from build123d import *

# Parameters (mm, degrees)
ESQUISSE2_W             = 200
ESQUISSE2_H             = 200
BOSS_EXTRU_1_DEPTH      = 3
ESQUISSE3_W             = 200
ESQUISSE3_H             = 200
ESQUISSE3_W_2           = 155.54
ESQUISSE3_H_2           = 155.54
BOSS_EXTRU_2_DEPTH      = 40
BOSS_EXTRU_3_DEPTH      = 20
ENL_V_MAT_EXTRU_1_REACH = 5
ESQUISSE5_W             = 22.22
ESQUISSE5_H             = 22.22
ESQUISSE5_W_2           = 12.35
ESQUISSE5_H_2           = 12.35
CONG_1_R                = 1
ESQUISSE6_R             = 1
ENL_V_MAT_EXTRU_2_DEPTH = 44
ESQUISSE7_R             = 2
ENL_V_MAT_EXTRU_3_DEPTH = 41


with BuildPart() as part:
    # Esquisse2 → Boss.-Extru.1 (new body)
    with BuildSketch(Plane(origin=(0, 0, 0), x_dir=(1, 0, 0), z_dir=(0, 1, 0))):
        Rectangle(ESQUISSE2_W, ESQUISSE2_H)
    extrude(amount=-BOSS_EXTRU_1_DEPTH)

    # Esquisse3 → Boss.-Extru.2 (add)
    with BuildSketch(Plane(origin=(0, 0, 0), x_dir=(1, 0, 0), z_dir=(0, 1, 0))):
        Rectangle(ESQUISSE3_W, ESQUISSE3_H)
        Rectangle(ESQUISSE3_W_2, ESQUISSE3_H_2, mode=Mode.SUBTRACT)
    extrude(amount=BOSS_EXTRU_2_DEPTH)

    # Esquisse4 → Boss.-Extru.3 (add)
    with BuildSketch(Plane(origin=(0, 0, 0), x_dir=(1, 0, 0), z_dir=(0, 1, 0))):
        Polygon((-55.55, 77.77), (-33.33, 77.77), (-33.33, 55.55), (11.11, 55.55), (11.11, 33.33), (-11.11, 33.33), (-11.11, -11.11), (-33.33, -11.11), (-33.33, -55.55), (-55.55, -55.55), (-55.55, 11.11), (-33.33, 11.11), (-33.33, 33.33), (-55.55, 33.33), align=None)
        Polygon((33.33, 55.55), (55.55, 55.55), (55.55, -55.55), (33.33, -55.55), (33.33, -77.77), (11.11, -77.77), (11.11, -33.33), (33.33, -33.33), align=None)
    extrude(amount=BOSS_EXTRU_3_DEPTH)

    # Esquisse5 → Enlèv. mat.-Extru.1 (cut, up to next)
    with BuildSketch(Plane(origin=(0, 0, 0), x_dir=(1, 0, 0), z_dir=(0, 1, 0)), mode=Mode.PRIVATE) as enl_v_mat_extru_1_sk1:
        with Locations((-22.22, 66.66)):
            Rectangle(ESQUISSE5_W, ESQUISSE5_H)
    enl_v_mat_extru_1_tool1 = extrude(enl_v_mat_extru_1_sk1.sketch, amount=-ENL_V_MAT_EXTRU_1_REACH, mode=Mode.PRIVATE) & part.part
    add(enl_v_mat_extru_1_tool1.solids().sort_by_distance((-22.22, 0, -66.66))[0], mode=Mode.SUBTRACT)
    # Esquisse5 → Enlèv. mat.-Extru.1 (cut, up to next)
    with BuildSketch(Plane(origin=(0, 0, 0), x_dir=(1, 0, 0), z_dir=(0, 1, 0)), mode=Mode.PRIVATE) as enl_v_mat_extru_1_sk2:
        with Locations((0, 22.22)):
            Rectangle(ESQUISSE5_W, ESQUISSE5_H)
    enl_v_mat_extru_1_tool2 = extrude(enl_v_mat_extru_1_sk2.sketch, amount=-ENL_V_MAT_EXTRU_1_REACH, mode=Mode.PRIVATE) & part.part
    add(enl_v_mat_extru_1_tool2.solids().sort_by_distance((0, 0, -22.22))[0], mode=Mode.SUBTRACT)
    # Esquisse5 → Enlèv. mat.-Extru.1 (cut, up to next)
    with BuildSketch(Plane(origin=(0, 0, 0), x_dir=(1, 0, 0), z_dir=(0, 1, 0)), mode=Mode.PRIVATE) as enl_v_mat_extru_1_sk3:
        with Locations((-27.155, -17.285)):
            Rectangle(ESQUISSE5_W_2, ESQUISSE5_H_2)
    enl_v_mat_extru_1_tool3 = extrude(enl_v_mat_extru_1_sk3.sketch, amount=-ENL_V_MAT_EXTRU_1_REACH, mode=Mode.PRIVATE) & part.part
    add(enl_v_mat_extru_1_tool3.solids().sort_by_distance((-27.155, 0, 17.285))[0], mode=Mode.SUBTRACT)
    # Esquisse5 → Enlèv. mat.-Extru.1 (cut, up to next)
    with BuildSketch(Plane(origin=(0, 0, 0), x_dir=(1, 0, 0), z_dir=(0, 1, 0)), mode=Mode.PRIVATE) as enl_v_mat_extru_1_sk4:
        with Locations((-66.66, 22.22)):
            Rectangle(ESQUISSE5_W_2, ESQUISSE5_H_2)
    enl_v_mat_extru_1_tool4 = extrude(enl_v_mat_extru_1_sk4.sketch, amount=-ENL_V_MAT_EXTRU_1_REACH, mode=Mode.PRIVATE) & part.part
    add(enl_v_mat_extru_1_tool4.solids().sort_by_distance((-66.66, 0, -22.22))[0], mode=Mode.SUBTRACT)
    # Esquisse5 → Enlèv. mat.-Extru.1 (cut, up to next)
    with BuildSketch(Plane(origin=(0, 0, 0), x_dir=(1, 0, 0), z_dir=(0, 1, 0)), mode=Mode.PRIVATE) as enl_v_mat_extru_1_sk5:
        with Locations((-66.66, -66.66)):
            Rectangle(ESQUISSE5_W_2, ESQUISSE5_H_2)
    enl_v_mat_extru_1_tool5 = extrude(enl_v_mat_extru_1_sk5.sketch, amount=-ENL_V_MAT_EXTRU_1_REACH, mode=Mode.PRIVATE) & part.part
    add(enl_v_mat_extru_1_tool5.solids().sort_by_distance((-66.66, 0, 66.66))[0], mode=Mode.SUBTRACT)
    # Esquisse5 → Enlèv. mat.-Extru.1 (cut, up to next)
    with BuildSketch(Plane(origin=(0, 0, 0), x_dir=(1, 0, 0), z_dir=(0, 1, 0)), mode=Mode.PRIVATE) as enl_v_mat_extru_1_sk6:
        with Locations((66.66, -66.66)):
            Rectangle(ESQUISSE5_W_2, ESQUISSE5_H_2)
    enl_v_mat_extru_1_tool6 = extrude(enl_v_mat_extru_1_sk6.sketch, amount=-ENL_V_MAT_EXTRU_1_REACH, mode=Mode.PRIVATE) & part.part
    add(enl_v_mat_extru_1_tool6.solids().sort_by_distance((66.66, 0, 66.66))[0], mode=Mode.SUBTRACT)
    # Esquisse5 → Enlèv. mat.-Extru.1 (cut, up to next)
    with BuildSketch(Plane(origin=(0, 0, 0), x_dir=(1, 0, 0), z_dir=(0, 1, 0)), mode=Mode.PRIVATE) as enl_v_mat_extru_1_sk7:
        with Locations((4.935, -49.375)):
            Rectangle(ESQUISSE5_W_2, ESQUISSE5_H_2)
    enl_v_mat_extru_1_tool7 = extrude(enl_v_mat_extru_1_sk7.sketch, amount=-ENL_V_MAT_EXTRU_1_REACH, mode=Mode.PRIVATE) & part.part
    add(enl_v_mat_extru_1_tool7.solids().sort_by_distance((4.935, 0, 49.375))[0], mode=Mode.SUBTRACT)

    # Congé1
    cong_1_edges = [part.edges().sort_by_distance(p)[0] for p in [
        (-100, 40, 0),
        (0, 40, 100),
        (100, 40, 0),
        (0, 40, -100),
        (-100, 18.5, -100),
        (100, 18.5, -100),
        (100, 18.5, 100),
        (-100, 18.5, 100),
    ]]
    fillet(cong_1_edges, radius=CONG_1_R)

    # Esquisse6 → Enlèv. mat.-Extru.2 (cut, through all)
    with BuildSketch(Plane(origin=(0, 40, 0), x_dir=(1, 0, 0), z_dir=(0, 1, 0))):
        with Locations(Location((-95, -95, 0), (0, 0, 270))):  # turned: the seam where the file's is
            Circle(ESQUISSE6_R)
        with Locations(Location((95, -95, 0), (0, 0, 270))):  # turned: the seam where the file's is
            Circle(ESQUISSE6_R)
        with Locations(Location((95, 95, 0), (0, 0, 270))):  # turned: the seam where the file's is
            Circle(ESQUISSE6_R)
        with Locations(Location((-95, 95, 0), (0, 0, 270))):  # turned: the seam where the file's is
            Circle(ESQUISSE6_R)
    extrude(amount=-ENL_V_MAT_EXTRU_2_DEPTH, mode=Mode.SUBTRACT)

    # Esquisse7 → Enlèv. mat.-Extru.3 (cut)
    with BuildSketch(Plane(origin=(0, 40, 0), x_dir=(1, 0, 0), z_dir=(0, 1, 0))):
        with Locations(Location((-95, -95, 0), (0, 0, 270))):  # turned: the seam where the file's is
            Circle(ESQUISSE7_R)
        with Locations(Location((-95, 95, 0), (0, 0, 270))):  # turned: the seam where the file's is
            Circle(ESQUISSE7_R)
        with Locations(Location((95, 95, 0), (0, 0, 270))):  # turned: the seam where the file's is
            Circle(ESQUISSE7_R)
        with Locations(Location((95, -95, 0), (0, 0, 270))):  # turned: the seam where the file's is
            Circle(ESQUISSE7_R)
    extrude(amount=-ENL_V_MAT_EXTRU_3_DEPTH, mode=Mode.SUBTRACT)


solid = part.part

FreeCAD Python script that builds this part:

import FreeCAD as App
import Part
import Sketcher
Q = App.Units.Quantity


def edges_at(feature, points):
    """Names of the edges that pass closest to the given points."""
    edges = feature.Shape.Edges
    near = lambda p: min(range(len(edges)), key=lambda i: edges[i].distToShape(Part.Vertex(*p))[0])
    return sorted({f"Edge{near(p) + 1}" for p in points})


def add_polygon(sketch, points):
    """Adds a closed chain of lines whose ends are joined by coincident constraints."""
    first, n = sketch.GeometryCount, len(points)
    for a, b in zip(points, points[1:] + points[:1]):
        sketch.addGeometry(Part.LineSegment(App.Vector(*a, 0), App.Vector(*b, 0)), False)
    for i in range(n):
        sketch.addConstraint(Sketcher.Constraint("Coincident", first + i, 2, first + (i + 1) % n, 1))

doc = App.newDocument("Part")
params = doc.addObject("Spreadsheet::Sheet", "Params")
for row, (alias, value) in enumerate([
    ("sketch1_width", "200 mm"),
    ("pad1_length", "3 mm"),
    ("sketch2_width", "200 mm"),
    ("sketch2_width2", "155.54 mm"),
    ("pad2_length", "40 mm"),
    ("sketch3_height", "111.1 mm"),
    ("pad3_length", "20 mm"),
    ("sketch4_width", "22.22 mm"),
    ("sketch5_width", "22.22 mm"),
    ("sketch6_width", "12.35 mm"),
    ("sketch7_width", "12.35 mm"),
    ("sketch8_width", "12.35 mm"),
    ("sketch9_width", "12.35 mm"),
    ("sketch10_width", "12.35 mm"),
    ("fillet_radius", "1 mm"),
    ("sketch11_diameter", "2 mm"),
    ("sketch12_diameter", "4 mm"),
    ("pocket9_length", "41 mm"),
], start=1):
    params.set(f"A{row}", alias)
    params.set(f"B{row}", "=" + value)
    params.setAlias(f"B{row}", alias)

body = doc.addObject("PartDesign::Body", "Body")

sketch1 = body.newObject("Sketcher::SketchObject", "Sketch")
sketch1.AttachmentSupport = (doc.getObject("XZ_Plane"), [""])
sketch1.MapMode = "FlatFace"
add_polygon(sketch1, [(-100, -100), (-100, 100), (100, 100), (100, -100)])
sketch1.addConstraint(Sketcher.Constraint("Vertical", 0))
sketch1.addConstraint(Sketcher.Constraint("Horizontal", 1))
sketch1.addConstraint(Sketcher.Constraint("Vertical", 2))
sketch1.addConstraint(Sketcher.Constraint("Horizontal", 3))
sketch1.addConstraint(Sketcher.Constraint("Symmetric", 0, 2, 2, 2, -1, 1))
sketch1.addConstraint(Sketcher.Constraint("Equal", 3, 0))
sketch1.addConstraint(Sketcher.Constraint("DistanceX", 1, 1, 1, 2, Q("200 mm")))
sketch1.setExpression("Constraints[10]", "Params.sketch1_width")
pad1 = body.newObject("PartDesign::Pad", "Pad")
pad1.Profile = sketch1
pad1.setExpression("Length", "Params.pad1_length")

sketch2 = body.newObject("Sketcher::SketchObject", "Sketch001")
sketch2.AttachmentSupport = (doc.getObject("XZ_Plane"), [""])
sketch2.MapMode = "FlatFace"
add_polygon(sketch2, [(-100, -100), (-100, 100), (100, 100), (100, -100)])
add_polygon(sketch2, [(78, 78), (-78, 78), (-78, -78), (78, -78)])
sketch2.addConstraint(Sketcher.Constraint("Vertical", 0))
sketch2.addConstraint(Sketcher.Constraint("Horizontal", 1))
sketch2.addConstraint(Sketcher.Constraint("Vertical", 2))
sketch2.addConstraint(Sketcher.Constraint("Horizontal", 3))
sketch2.addConstraint(Sketcher.Constraint("Horizontal", 4))
sketch2.addConstraint(Sketcher.Constraint("Vertical", 5))
sketch2.addConstraint(Sketcher.Constraint("Horizontal", 6))
sketch2.addConstraint(Sketcher.Constraint("Vertical", 7))
sketch2.addConstraint(Sketcher.Constraint("Symmetric", 0, 2, 2, 2, -1, 1))
sketch2.addConstraint(Sketcher.Constraint("Symmetric", 4, 2, 6, 2, -1, 1))
sketch2.addConstraint(Sketcher.Constraint("Equal", 3, 0))
sketch2.addConstraint(Sketcher.Constraint("Equal", 6, 5))
sketch2.addConstraint(Sketcher.Constraint("DistanceX", 1, 1, 1, 2, Q("200 mm")))
sketch2.addConstraint(Sketcher.Constraint("DistanceX", 4, 2, 4, 1, Q("155.54 mm")))
sketch2.setExpression("Constraints[20]", "Params.sketch2_width")
sketch2.setExpression("Constraints[21]", "Params.sketch2_width2")
pad2 = body.newObject("PartDesign::Pad", "Pad001")
pad2.Profile = sketch2
pad2.setExpression("Length", "Params.pad2_length")
pad2.Reversed = True

sketch3 = body.newObject("Sketcher::SketchObject", "Sketch002")
sketch3.AttachmentSupport = (doc.getObject("XZ_Plane"), [""])
sketch3.MapMode = "FlatFace"
add_polygon(sketch3, [(-33, -78), (-56, -78), (-56, -33), (-33, -33), (-33, -11), (-56, -11), (-56, 56), (-33, 56), (-33, 11), (-11, 11), (-11, -33), (11, -33), (11, -56), (-33, -56)])
add_polygon(sketch3, [(56, -56), (33, -56), (33, 33), (11, 33), (11, 78), (33, 78), (33, 56), (56, 56)])
sketch3.addConstraint(Sketcher.Constraint("Horizontal", 0))
sketch3.addConstraint(Sketcher.Constraint("Vertical", 1))
sketch3.addConstraint(Sketcher.Constraint("Horizontal", 2))
sketch3.addConstraint(Sketcher.Constraint("Vertical", 3))
sketch3.addConstraint(Sketcher.Constraint("Horizontal", 4))
sketch3.addConstraint(Sketcher.Constraint("Vertical", 5))
sketch3.addConstraint(Sketcher.Constraint("Horizontal", 6))
sketch3.addConstraint(Sketcher.Constraint("Vertical", 7))
sketch3.addConstraint(Sketcher.Constraint("Horizontal", 8))
sketch3.addConstraint(Sketcher.Constraint("Vertical", 9))
sketch3.addConstraint(Sketcher.Constraint("Horizontal", 10))
sketch3.addConstraint(Sketcher.Constraint("Vertical", 11))
sketch3.addConstraint(Sketcher.Constraint("Horizontal", 12))
sketch3.addConstraint(Sketcher.Constraint("Vertical", 13))
sketch3.addConstraint(Sketcher.Constraint("Horizontal", 14))
sketch3.addConstraint(Sketcher.Constraint("Vertical", 15))
sketch3.addConstraint(Sketcher.Constraint("Horizontal", 16))
sketch3.addConstraint(Sketcher.Constraint("Vertical", 17))
sketch3.addConstraint(Sketcher.Constraint("Horizontal", 18))
sketch3.addConstraint(Sketcher.Constraint("Vertical", 19))
sketch3.addConstraint(Sketcher.Constraint("Horizontal", 20))
sketch3.addConstraint(Sketcher.Constraint("Vertical", 21))
sketch3.addConstraint(Sketcher.Constraint("Symmetric", 6, 2, 14, 2, -1, 1))
sketch3.addConstraint(Sketcher.Constraint("Symmetric", 2, 2, 15, 2, -1, 1))
sketch3.addConstraint(Sketcher.Constraint("Symmetric", 9, 2, 16, 2, -1, 1))
sketch3.addConstraint(Sketcher.Constraint("Symmetric", 13, 2, 18, 2, -1, 1))
sketch3.addConstraint(Sketcher.Constraint("Symmetric", 12, 2, 14, 2, -2))
sketch3.addConstraint(Sketcher.Constraint("Symmetric", 5, 2, 20, 2, -2))
sketch3.addConstraint(Sketcher.Constraint("Vertical", 1, 2, 4, 2))
sketch3.addConstraint(Sketcher.Constraint("Vertical", 11, 2, 16, 2))
sketch3.addConstraint(Sketcher.Constraint("Equal", 6, 8))
sketch3.addConstraint(Sketcher.Constraint("Equal", 8, 10))
sketch3.addConstraint(Sketcher.Constraint("Equal", 12, 1))
sketch3.addConstraint(Sketcher.Constraint("Equal", 20, 3))
sketch3.addConstraint(Sketcher.Constraint("Equal", 1, 7))
sketch3.addConstraint(Sketcher.Constraint("Equal", 7, 9))
sketch3.addConstraint(Sketcher.Constraint("Equal", 3, 11))
sketch3.addConstraint(Sketcher.Constraint("DistanceY", 21, 2, 21, 1, Q("111.1 mm")))
sketch3.setExpression("Constraints[59]", "Params.sketch3_height")
pad3 = body.newObject("PartDesign::Pad", "Pad002")
pad3.Profile = sketch3
pad3.setExpression("Length", "Params.pad3_length")
pad3.Reversed = True

sketch4 = body.newObject("Sketcher::SketchObject", "Sketch003")
sketch4.AttachmentSupport = (doc.getObject("XZ_Plane"), [""])
sketch4.MapMode = "FlatFace"
add_polygon(sketch4, [(-33, -78), (-33, -56), (-11, -56), (-11, -78)])
sketch4.addConstraint(Sketcher.Constraint("Vertical", 0))
sketch4.addConstraint(Sketcher.Constraint("Horizontal", 1))
sketch4.addConstraint(Sketcher.Constraint("Vertical", 2))
sketch4.addConstraint(Sketcher.Constraint("Horizontal", 3))
sketch4.addConstraint(Sketcher.Constraint("Equal", 3, 0))
sketch4.addConstraint(Sketcher.Constraint("DistanceX", 1, 1, 1, 2, Q("22.22 mm")))
sketch4.addConstraint(Sketcher.Constraint("DistanceX", 0, 2, -1, 1, Q("33.33 mm")))
sketch4.addConstraint(Sketcher.Constraint("DistanceY", 0, 2, -1, 1, Q("55.55 mm")))
sketch4.setExpression("Constraints[9]", "Params.sketch4_width")
pocket1 = body.newObject("PartDesign::Pocket", "Pocket")
pocket1.Profile = sketch4
pocket1.Type = "UpToFirst"
pocket1.Reversed = True

sketch5 = body.newObject("Sketcher::SketchObject", "Sketch004")
sketch5.AttachmentSupport = (doc.getObject("XZ_Plane"), [""])
sketch5.MapMode = "FlatFace"
add_polygon(sketch5, [(-11, -33), (-11, -11), (11, -11), (11, -33)])
sketch5.addConstraint(Sketcher.Constraint("Vertical", 0))
sketch5.addConstraint(Sketcher.Constraint("Horizontal", 1))
sketch5.addConstraint(Sketcher.Constraint("Vertical", 2))
sketch5.addConstraint(Sketcher.Constraint("Horizontal", 3))
sketch5.addConstraint(Sketcher.Constraint("Equal", 3, 0))
sketch5.addConstraint(Sketcher.Constraint("DistanceX", 1, 1, 1, 2, Q("22.22 mm")))
sketch5.addConstraint(Sketcher.Constraint("DistanceX", 0, 2, -1, 1, Q("11.11 mm")))
sketch5.addConstraint(Sketcher.Constraint("DistanceY", 0, 2, -1, 1, Q("11.11 mm")))
sketch5.setExpression("Constraints[9]", "Params.sketch5_width")
pocket2 = body.newObject("PartDesign::Pocket", "Pocket001")
pocket2.Profile = sketch5
pocket2.Type = "UpToFirst"
pocket2.Reversed = True

sketch6 = body.newObject("Sketcher::SketchObject", "Sketch005")
sketch6.AttachmentSupport = (doc.getObject("XZ_Plane"), [""])
sketch6.MapMode = "FlatFace"
add_polygon(sketch6, [(-33, 11), (-33, 23), (-21, 23), (-21, 11)])
sketch6.addConstraint(Sketcher.Constraint("Vertical", 0))
sketch6.addConstraint(Sketcher.Constraint("Horizontal", 1))
sketch6.addConstraint(Sketcher.Constraint("Vertical", 2))
sketch6.addConstraint(Sketcher.Constraint("Horizontal", 3))
sketch6.addConstraint(Sketcher.Constraint("Equal", 3, 0))
sketch6.addConstraint(Sketcher.Constraint("DistanceX", 1, 1, 1, 2, Q("12.35 mm")))
sketch6.addConstraint(Sketcher.Constraint("DistanceX", 0, 2, -1, 1, Q("33.33 mm")))
sketch6.addConstraint(Sketcher.Constraint("DistanceY", -1, 1, 0, 2, Q("23.46 mm")))
sketch6.setExpression("Constraints[9]", "Params.sketch6_width")
pocket3 = body.newObject("PartDesign::Pocket", "Pocket002")
pocket3.Profile = sketch6
pocket3.Type = "UpToFirst"
pocket3.Reversed = True

sketch7 = body.newObject("Sketcher::SketchObject", "Sketch006")
sketch7.AttachmentSupport = (doc.getObject("XZ_Plane"), [""])
sketch7.MapMode = "FlatFace"
add_polygon(sketch7, [(-73, -28), (-73, -16), (-60, -16), (-60, -28)])
sketch7.addConstraint(Sketcher.Constraint("Vertical", 0))
sketch7.addConstraint(Sketcher.Constraint("Horizontal", 1))
sketch7.addConstraint(Sketcher.Constraint("Vertical", 2))
sketch7.addConstraint(Sketcher.Constraint("Horizontal", 3))
sketch7.addConstraint(Sketcher.Constraint("Equal", 3, 0))
sketch7.addConstraint(Sketcher.Constraint("DistanceX", 1, 1, 1, 2, Q("12.35 mm")))
sketch7.addConstraint(Sketcher.Constraint("DistanceX", 0, 2, -1, 1, Q("72.835 mm")))
sketch7.addConstraint(Sketcher.Constraint("DistanceY", 0, 2, -1, 1, Q("16.045 mm")))
sketch7.setExpression("Constraints[9]", "Params.sketch7_width")
pocket4 = body.newObject("PartDesign::Pocket", "Pocket003")
pocket4.Profile = sketch7
pocket4.Type = "UpToFirst"
pocket4.Reversed = True

sketch8 = body.newObject("Sketcher::SketchObject", "Sketch007")
sketch8.AttachmentSupport = (doc.getObject("XZ_Plane"), [""])
sketch8.MapMode = "FlatFace"
add_polygon(sketch8, [(-73, 60), (-73, 73), (-60, 73), (-60, 60)])
sketch8.addConstraint(Sketcher.Constraint("Vertical", 0))
sketch8.addConstraint(Sketcher.Constraint("Horizontal", 1))
sketch8.addConstraint(Sketcher.Constraint("Vertical", 2))
sketch8.addConstraint(Sketcher.Constraint("Horizontal", 3))
sketch8.addConstraint(Sketcher.Constraint("Equal", 3, 0))
sketch8.addConstraint(Sketcher.Constraint("DistanceX", 1, 1, 1, 2, Q("12.35 mm")))
sketch8.addConstraint(Sketcher.Constraint("DistanceX", 0, 2, -1, 1, Q("72.835 mm")))
sketch8.addConstraint(Sketcher.Constraint("DistanceY", -1, 1, 0, 2, Q("72.835 mm")))
sketch8.setExpression("Constraints[9]", "Params.sketch8_width")
pocket5 = body.newObject("PartDesign::Pocket", "Pocket004")
pocket5.Profile = sketch8
pocket5.Type = "UpToFirst"
pocket5.Reversed = True

sketch9 = body.newObject("Sketcher::SketchObject", "Sketch008")
sketch9.AttachmentSupport = (doc.getObject("XZ_Plane"), [""])
sketch9.MapMode = "FlatFace"
add_polygon(sketch9, [(60, 60), (60, 73), (73, 73), (73, 60)])
sketch9.addConstraint(Sketcher.Constraint("Vertical", 0))
sketch9.addConstraint(Sketcher.Constraint("Horizontal", 1))
sketch9.addConstraint(Sketcher.Constraint("Vertical", 2))
sketch9.addConstraint(Sketcher.Constraint("Horizontal", 3))
sketch9.addConstraint(Sketcher.Constraint("Equal", 3, 0))
sketch9.addConstraint(Sketcher.Constraint("DistanceX", 1, 1, 1, 2, Q("12.35 mm")))
sketch9.addConstraint(Sketcher.Constraint("DistanceX", -1, 1, 0, 2, Q("60.485 mm")))
sketch9.addConstraint(Sketcher.Constraint("DistanceY", -1, 1, 0, 2, Q("72.835 mm")))
sketch9.setExpression("Constraints[9]", "Params.sketch9_width")
pocket6 = body.newObject("PartDesign::Pocket", "Pocket005")
pocket6.Profile = sketch9
pocket6.Type = "UpToFirst"
pocket6.Reversed = True

sketch10 = body.newObject("Sketcher::SketchObject", "Sketch009")
sketch10.AttachmentSupport = (doc.getObject("XZ_Plane"), [""])
sketch10.MapMode = "FlatFace"
add_polygon(sketch10, [(-1, 43), (-1, 56), (11, 56), (11, 43)])
sketch10.addConstraint(Sketcher.Constraint("Vertical", 0))
sketch10.addConstraint(Sketcher.Constraint("Horizontal", 1))
sketch10.addConstraint(Sketcher.Constraint("Vertical", 2))
sketch10.addConstraint(Sketcher.Constraint("Horizontal", 3))
sketch10.addConstraint(Sketcher.Constraint("Equal", 3, 0))
sketch10.addConstraint(Sketcher.Constraint("DistanceX", 1, 1, 1, 2, Q("12.35 mm")))
sketch10.addConstraint(Sketcher.Constraint("DistanceY", -1, 1, 2, 2, Q("43.2 mm")))
sketch10.addConstraint(Sketcher.Constraint("DistanceX", 0, 2, -1, 1, Q("1.24 mm")))
sketch10.setExpression("Constraints[9]", "Params.sketch10_width")
pocket7 = body.newObject("PartDesign::Pocket", "Pocket006")
pocket7.Profile = sketch10
pocket7.Type = "UpToFirst"
pocket7.Reversed = True
doc.recompute()

fillet = body.newObject("PartDesign::Fillet", "Fillet")
fillet.Base = (pocket7, edges_at(pocket7, [
    (-100, 40, 0),
    (0, 40, 100),
    (100, 40, 0),
    (0, 40, -100),
    (-100, 18.5, -100),
    (100, 18.5, -100),
    (100, 18.5, 100),
    (-100, 18.5, 100),
]))
fillet.setExpression("Radius", "Params.fillet_radius")

sketch11 = body.newObject("Sketcher::SketchObject", "Sketch010")
sketch11.AttachmentSupport = (doc.getObject("XZ_Plane"), [""])
sketch11.MapMode = "FlatFace"
sketch11.AttachmentOffset = App.Placement(App.Vector(0, 0, -40), App.Rotation())
sketch11.addGeometry(Part.Circle(App.Vector(-95, 95, 0), App.Vector(0, 0, 1), 1), False)
sketch11.addGeometry(Part.Circle(App.Vector(95, 95, 0), App.Vector(0, 0, 1), 1), False)
sketch11.addGeometry(Part.Circle(App.Vector(95, -95, 0), App.Vector(0, 0, 1), 1), False)
sketch11.addGeometry(Part.Circle(App.Vector(-95, -95, 0), App.Vector(0, 0, 1), 1), False)
sketch11.addConstraint(Sketcher.Constraint("Equal", 0, 1))
sketch11.addConstraint(Sketcher.Constraint("Equal", 1, 2))
sketch11.addConstraint(Sketcher.Constraint("Equal", 2, 3))
sketch11.addConstraint(Sketcher.Constraint("Symmetric", 0, 3, 2, 3, -1, 1))
sketch11.addConstraint(Sketcher.Constraint("Symmetric", 1, 3, 3, 3, -1, 1))
sketch11.addConstraint(Sketcher.Constraint("Symmetric", 0, 3, 1, 3, -2))
sketch11.addConstraint(Sketcher.Constraint("Diameter", 0, Q("2 mm")))
sketch11.addConstraint(Sketcher.Constraint("DistanceX", 0, 3, -1, 1, Q("95 mm")))
sketch11.addConstraint(Sketcher.Constraint("DistanceY", -1, 1, 0, 3, Q("95 mm")))
sketch11.setExpression("Constraints[6]", "Params.sketch11_diameter")
pocket8 = body.newObject("PartDesign::Pocket", "Pocket007")
pocket8.Profile = sketch11
pocket8.Type = "ThroughAll"
pocket8.Reversed = True

sketch12 = body.newObject("Sketcher::SketchObject", "Sketch011")
sketch12.AttachmentSupport = (doc.getObject("XZ_Plane"), [""])
sketch12.MapMode = "FlatFace"
sketch12.AttachmentOffset = App.Placement(App.Vector(0, 0, -40), App.Rotation())
sketch12.addGeometry(Part.Circle(App.Vector(-95, 95, 0), App.Vector(0, 0, 1), 2), False)
sketch12.addGeometry(Part.Circle(App.Vector(-95, -95, 0), App.Vector(0, 0, 1), 2), False)
sketch12.addGeometry(Part.Circle(App.Vector(95, -95, 0), App.Vector(0, 0, 1), 2), False)
sketch12.addGeometry(Part.Circle(App.Vector(95, 95, 0), App.Vector(0, 0, 1), 2), False)
sketch12.addConstraint(Sketcher.Constraint("Equal", 0, 1))
sketch12.addConstraint(Sketcher.Constraint("Equal", 1, 2))
sketch12.addConstraint(Sketcher.Constraint("Equal", 2, 3))
sketch12.addConstraint(Sketcher.Constraint("Symmetric", 0, 3, 2, 3, -1, 1))
sketch12.addConstraint(Sketcher.Constraint("Symmetric", 1, 3, 3, 3, -1, 1))
sketch12.addConstraint(Sketcher.Constraint("Symmetric", 1, 3, 2, 3, -2))
sketch12.addConstraint(Sketcher.Constraint("Diameter", 0, Q("4 mm")))
sketch12.addConstraint(Sketcher.Constraint("DistanceX", 0, 3, -1, 1, Q("95 mm")))
sketch12.addConstraint(Sketcher.Constraint("DistanceY", -1, 1, 0, 3, Q("95 mm")))
sketch12.setExpression("Constraints[6]", "Params.sketch12_diameter")
pocket9 = body.newObject("PartDesign::Pocket", "Pocket008")
pocket9.Profile = sketch12
pocket9.setExpression("Length", "Params.pocket9_length")
pocket9.Reversed = True

doc.recompute()
